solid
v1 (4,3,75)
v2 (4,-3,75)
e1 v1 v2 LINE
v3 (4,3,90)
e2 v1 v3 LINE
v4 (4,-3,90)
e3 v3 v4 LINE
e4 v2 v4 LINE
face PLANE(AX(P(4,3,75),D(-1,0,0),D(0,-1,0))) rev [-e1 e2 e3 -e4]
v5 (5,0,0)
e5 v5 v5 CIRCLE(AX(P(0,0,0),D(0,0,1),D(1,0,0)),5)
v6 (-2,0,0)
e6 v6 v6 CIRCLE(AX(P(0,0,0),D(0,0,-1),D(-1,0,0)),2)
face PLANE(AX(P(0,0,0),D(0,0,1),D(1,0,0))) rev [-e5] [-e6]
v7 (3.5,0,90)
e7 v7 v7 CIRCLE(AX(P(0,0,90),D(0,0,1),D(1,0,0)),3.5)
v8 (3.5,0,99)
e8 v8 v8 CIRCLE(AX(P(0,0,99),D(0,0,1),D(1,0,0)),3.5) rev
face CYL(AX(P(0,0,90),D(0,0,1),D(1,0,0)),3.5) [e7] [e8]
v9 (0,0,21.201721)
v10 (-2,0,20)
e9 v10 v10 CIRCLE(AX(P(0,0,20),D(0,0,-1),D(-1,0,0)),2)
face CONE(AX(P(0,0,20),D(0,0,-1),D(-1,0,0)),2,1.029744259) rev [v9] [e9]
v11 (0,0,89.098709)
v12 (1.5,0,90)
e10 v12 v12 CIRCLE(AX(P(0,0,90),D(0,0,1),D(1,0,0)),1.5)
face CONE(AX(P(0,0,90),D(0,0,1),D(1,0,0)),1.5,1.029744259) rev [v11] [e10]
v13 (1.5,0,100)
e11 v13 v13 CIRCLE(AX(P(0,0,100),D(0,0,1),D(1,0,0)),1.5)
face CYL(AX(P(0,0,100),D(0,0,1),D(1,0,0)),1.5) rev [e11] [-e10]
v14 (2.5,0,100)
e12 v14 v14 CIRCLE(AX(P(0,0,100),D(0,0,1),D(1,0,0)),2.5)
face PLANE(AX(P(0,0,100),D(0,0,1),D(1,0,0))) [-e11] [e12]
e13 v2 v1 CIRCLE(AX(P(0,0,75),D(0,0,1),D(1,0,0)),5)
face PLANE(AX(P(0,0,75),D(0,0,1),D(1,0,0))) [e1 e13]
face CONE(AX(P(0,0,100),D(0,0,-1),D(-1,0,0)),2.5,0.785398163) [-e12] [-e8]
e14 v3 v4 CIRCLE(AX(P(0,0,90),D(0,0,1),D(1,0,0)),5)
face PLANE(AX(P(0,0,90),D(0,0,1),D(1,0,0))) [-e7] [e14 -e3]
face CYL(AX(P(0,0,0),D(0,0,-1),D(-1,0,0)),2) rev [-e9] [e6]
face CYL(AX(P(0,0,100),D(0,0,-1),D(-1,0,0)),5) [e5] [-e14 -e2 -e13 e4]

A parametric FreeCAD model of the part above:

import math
import FreeCAD as App
import Part
import Sketcher
from FreeCAD import Vector


def edges_at(feature, points):
    """Names of the edges that pass closest to the given points."""
    edges = feature.Shape.Edges
    near = lambda p: min(range(len(edges)), key=lambda i: edges[i].distToShape(Part.Vertex(*p))[0])
    return sorted({f"Edge{near(p) + 1}" for p in points})

doc = App.newDocument("Part")
body = doc.addObject("PartDesign::Body", "Body")

# Sketch on XY plane
sketch1 = body.newObject("Sketcher::SketchObject", "Sketch")
sketch1.AttachmentSupport = (doc.getObject("XY_Plane"), [""])
sketch1.MapMode = "FlatFace"
sketch1.addGeometry(Part.Circle(Vector(0, 0, 0), Vector(0, 0, 1), 5), False)
sketch1.addConstraint(Sketcher.Constraint("Coincident", 0, 3, -1, 1))
sketch1.addConstraint(Sketcher.Constraint("Diameter", 0, 10.0))
pad1 = body.newObject("PartDesign::Pad", "Pad")
pad1.Profile = sketch1
pad1.Length = 100

# Sketch on XY plane
sketch2 = body.newObject("Sketcher::SketchObject", "Sketch001")
sketch2.AttachmentSupport = (doc.getObject("XY_Plane"), [""])
sketch2.MapMode = "FlatFace"
sketch2.AttachmentOffset = App.Placement(Vector(0, 0, 100), App.Rotation())
sketch2.addGeometry(Part.LineSegment(Vector(-16.1, 16.1, 0), Vector(-16.1, -16.1, 0)), False)
sketch2.addGeometry(Part.LineSegment(Vector(-16.1, -16.1, 0), Vector(16.1, -16.1, 0)), False)
sketch2.addGeometry(Part.LineSegment(Vector(16.1, -16.1, 0), Vector(16.1, 16.1, 0)), False)
sketch2.addGeometry(Part.LineSegment(Vector(16.1, 16.1, 0), Vector(-16.1, 16.1, 0)), False)
sketch2.addGeometry(Part.Circle(Vector(0, 0, 0), Vector(0, 0, 1), 3.5), False)
sketch2.addConstraint(Sketcher.Constraint("Coincident", 0, 2, 1, 1))
sketch2.addConstraint(Sketcher.Constraint("Coincident", 1, 2, 2, 1))
sketch2.addConstraint(Sketcher.Constraint("Coincident", 2, 2, 3, 1))
sketch2.addConstraint(Sketcher.Constraint("Coincident", 3, 2, 0, 1))
sketch2.addConstraint(Sketcher.Constraint("Vertical", 0))
sketch2.addConstraint(Sketcher.Constraint("Horizontal", 1))
sketch2.addConstraint(Sketcher.Constraint("Vertical", 2))
sketch2.addConstraint(Sketcher.Constraint("Horizontal", 3))
sketch2.addConstraint(Sketcher.Constraint("Coincident", 4, 3, -1, 1))
sketch2.addConstraint(Sketcher.Constraint("Symmetric", 0, 2, 2, 2, -1, 1))
sketch2.addConstraint(Sketcher.Constraint("Equal", 3, 0))
sketch2.addConstraint(Sketcher.Constraint("Diameter", 4, 7.0))
sketch2.addConstraint(Sketcher.Constraint("DistanceX", 1, 1, 1, 2, 32.2))
pocket1 = body.newObject("PartDesign::Pocket", "Pocket")
pocket1.Profile = sketch2
pocket1.Length = 10

# Sketch on XY plane
sketch3 = body.newObject("Sketcher::SketchObject", "Sketch002")
sketch3.AttachmentSupport = (doc.getObject("XY_Plane"), [""])
sketch3.MapMode = "FlatFace"
sketch3.AttachmentOffset = App.Placement(Vector(0, 0, 100), App.Rotation())
sketch3.addGeometry(Part.Circle(Vector(0, 0, 0), Vector(0, 0, 1), 1.5), False)
sketch3.addConstraint(Sketcher.Constraint("Coincident", 0, 3, -1, 1))
sketch3.addConstraint(Sketcher.Constraint("Diameter", 0, 3.0))
doc.recompute()
hole = body.newObject("PartDesign::Hole", "Hole")
hole.Profile = sketch3
hole.ThreadType = "None"
hole.Diameter = 3
hole.DepthType = "Dimension"
hole.Depth = 10
hole.DrillPoint = "Angled"
hole.DrillPointAngle = 118
doc.recompute()

chamfer = body.newObject("PartDesign::Chamfer", "Chamfer")
chamfer.Base = (hole, edges_at(hole, [(-3.5, 0, 100)]))
chamfer.Size = 1

# Sketch on XY plane
sketch4 = body.newObject("Sketcher::SketchObject", "Sketch003")
sketch4.AttachmentSupport = (doc.getObject("XY_Plane"), [""])
sketch4.MapMode = "FlatFace"
sketch4.AttachmentOffset = App.Placement(Vector(0, 0, 75), App.Rotation())
sketch4.addGeometry(Part.LineSegment(Vector(4, 3, 0), Vector(4, -3, 0)), False)
sketch4.addGeometry(Part.ArcOfCircle(Part.Circle(Vector(0, 0, 0), Vector(0, 0, 1), 5), math.radians(-37), math.radians(37)), False)
sketch4.addConstraint(Sketcher.Constraint("Coincident", 0, 1, 1, 2))
sketch4.addConstraint(Sketcher.Constraint("Coincident", 1, 1, 0, 2))
sketch4.addConstraint(Sketcher.Constraint("Vertical", 0))
sketch4.addConstraint(Sketcher.Constraint("Coincident", 1, 3, -1, 1))
sketch4.addConstraint(Sketcher.Constraint("Radius", 1, 5.0))
sketch4.addConstraint(Sketcher.Constraint("DistanceY", 0, 2, 0, 1, 6.0))
pocket2 = body.newObject("PartDesign::Pocket", "Pocket001")
pocket2.Profile = sketch4
pocket2.Length = 15
pocket2.Reversed = True

# Sketch on XY plane
sketch5 = body.newObject("Sketcher::SketchObject", "Sketch004")
sketch5.AttachmentSupport = (doc.getObject("XY_Plane"), [""])
sketch5.MapMode = "FlatFace"
sketch5.addGeometry(Part.Circle(Vector(0, 0, 0), Vector(0, 0, 1), 2), False)
sketch5.addConstraint(Sketcher.Constraint("Coincident", 0, 3, -1, 1))
sketch5.addConstraint(Sketcher.Constraint("Diameter", 0, 4.0))
doc.recompute()
hole2 = body.newObject("PartDesign::Hole", "Hole001")
hole2.Profile = sketch5
hole2.ThreadType = "None"
hole2.Diameter = 4
hole2.DepthType = "Dimension"
hole2.Depth = 20
hole2.DrillPoint = "Angled"
hole2.DrillPointAngle = 118
hole2.Reversed = True

doc.recompute()
